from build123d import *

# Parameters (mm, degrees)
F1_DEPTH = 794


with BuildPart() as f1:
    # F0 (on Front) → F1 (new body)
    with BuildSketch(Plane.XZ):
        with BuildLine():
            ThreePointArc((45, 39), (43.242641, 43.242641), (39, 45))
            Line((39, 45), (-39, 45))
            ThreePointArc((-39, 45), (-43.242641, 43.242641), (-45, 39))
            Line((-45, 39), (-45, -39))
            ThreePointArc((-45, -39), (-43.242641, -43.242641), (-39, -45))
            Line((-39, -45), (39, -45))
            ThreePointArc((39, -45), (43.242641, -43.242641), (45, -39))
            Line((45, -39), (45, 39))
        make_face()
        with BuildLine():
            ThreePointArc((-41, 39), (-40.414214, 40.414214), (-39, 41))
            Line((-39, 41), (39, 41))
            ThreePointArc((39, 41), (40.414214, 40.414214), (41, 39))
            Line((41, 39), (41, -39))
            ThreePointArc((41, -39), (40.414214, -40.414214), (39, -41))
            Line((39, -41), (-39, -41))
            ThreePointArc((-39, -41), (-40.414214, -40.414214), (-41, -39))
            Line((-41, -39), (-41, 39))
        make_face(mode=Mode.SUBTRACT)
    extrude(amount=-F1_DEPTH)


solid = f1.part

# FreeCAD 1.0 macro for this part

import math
import FreeCAD as App
import Part
import Sketcher

V = App.Vector

doc = App.newDocument("Part")
params = doc.addObject("Spreadsheet::Sheet", "Params")
for row, (alias, value) in enumerate([
    ("sketch1_radius", "5.999999 mm"),
    ("sketch1_radius2", "1.999999 mm"),
    ("sketch1_width", "78 mm"),
    ("pad1_length", "794 mm"),
], start=1):
    params.set(f"A{row}", alias)
    params.set(f"B{row}", "=" + value)
    params.setAlias(f"B{row}", alias)

body = doc.addObject("PartDesign::Body", "Body")

sketch1 = body.newObject("Sketcher::SketchObject", "Sketch")
sketch1.AttachmentSupport = (doc.getObject("XZ_Plane"), [""])
sketch1.MapMode = "FlatFace"
sketch1.addGeometry([
    Part.ArcOfCircle(Part.Circle(V(39, 39, 0), V(0, 0, 1), 6), math.radians(0), math.radians(90)),
    Part.LineSegment(V(39, 45, 0), V(-39, 45, 0)),
    Part.ArcOfCircle(Part.Circle(V(-39, 39, 0), V(0, 0, 1), 6), math.radians(90), math.radians(180)),
    Part.LineSegment(V(-45, 39, 0), V(-45, -39, 0)),
    Part.ArcOfCircle(Part.Circle(V(-39, -39, 0), V(0, 0, 1), 6), math.radians(180), math.radians(270)),
    Part.LineSegment(V(-39, -45, 0), V(39, -45, 0)),
    Part.ArcOfCircle(Part.Circle(V(39, -39, 0), V(0, 0, 1), 6), math.radians(-90), math.radians(0)),
    Part.LineSegment(V(45, -39, 0), V(45, 39, 0)),
    Part.LineSegment(V(-41, -39, 0), V(-41, 39, 0)),
    Part.ArcOfCircle(Part.Circle(V(-39, 39, 0), V(0, 0, 1), 2), math.radians(90), math.radians(180)),
    Part.LineSegment(V(-39, 41, 0), V(39, 41, 0)),
    Part.ArcOfCircle(Part.Circle(V(39, 39, 0), V(0, 0, 1), 2), math.radians(0), math.radians(90)),
    Part.LineSegment(V(41, 39, 0), V(41, -39, 0)),
    Part.ArcOfCircle(Part.Circle(V(39, -39, 0), V(0, 0, 1), 2), math.radians(-90), math.radians(0)),
    Part.LineSegment(V(39, -41, 0), V(-39, -41, 0)),
    Part.ArcOfCircle(Part.Circle(V(-39, -39, 0), V(0, 0, 1), 2), math.radians(180), math.radians(270)),
], False)
sketch1.addConstraint([
    Sketcher.Constraint("Tangent", 0, 2, 1, 1),
    Sketcher.Constraint("Tangent", 1, 2, 2, 1),
    Sketcher.Constraint("Tangent", 2, 2, 3, 1),
    Sketcher.Constraint("Tangent", 3, 2, 4, 1),
    Sketcher.Constraint("Tangent", 4, 2, 5, 1),
    Sketcher.Constraint("Tangent", 5, 2, 6, 1),
    Sketcher.Constraint("Tangent", 6, 2, 7, 1),
    Sketcher.Constraint("Tangent", 7, 2, 0, 1),
    Sketcher.Constraint("Tangent", 8, 2, 9, 2),
    Sketcher.Constraint("Tangent", 9, 1, 10, 1),
    Sketcher.Constraint("Tangent", 10, 2, 11, 2),
    Sketcher.Constraint("Tangent", 11, 1, 12, 1),
    Sketcher.Constraint("Tangent", 12, 2, 13, 2),
    Sketcher.Constraint("Tangent", 13, 1, 14, 1),
    Sketcher.Constraint("Tangent", 14, 2, 15, 2),
    Sketcher.Constraint("Tangent", 15, 1, 8, 1),
    Sketcher.Constraint("Horizontal", 1),
    Sketcher.Constraint("Vertical", 3),
    Sketcher.Constraint("Horizontal", 5),
    Sketcher.Constraint("Vertical", 7),
    Sketcher.Constraint("Vertical", 8),
    Sketcher.Constraint("Horizontal", 10),
    Sketcher.Constraint("Vertical", 12),
    Sketcher.Constraint("Horizontal", 14),
    Sketcher.Constraint("Coincident", 9, 3, 2, 3),
    Sketcher.Constraint("Coincident", 11, 3, 0, 3),
    Sketcher.Constraint("Coincident", 13, 3, 6, 3),
    Sketcher.Constraint("Equal", 0, 2),
    Sketcher.Constraint("Equal", 2, 4),
    Sketcher.Constraint("Equal", 4, 6),
    Sketcher.Constraint("Equal", 13, 15),
    Sketcher.Constraint("Symmetric", 0, 3, 4, 3, -1, 1),
    Sketcher.Constraint("Equal", 14, 3),
    Sketcher.Constraint("Radius", 0, 5.999999),
    Sketcher.Constraint("Radius", 9, 1.999999),
    Sketcher.Constraint("DistanceX", 1, 2, 1, 1, 78.0),
])
sketch1.setExpression("Constraints[33]", "Params.sketch1_radius")
sketch1.setExpression("Constraints[34]", "Params.sketch1_radius2")
sketch1.setExpression("Constraints[35]", "Params.sketch1_width")
pad1 = body.newObject("PartDesign::Pad", "Pad")
pad1.Profile = sketch1
pad1.setExpression("Length", "Params.pad1_length")
pad1.Reversed = True

doc.recompute()
